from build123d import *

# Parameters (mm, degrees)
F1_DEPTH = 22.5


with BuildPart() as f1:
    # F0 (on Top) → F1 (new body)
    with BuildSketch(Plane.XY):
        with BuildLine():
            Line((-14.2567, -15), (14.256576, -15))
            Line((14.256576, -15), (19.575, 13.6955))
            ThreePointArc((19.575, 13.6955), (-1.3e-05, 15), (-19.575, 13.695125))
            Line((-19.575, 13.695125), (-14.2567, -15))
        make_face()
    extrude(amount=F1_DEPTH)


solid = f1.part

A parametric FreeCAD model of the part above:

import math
import FreeCAD as App
import Part
import Sketcher

V = App.Vector

doc = App.newDocument("Part")
body = doc.addObject("PartDesign::Body", "Body")

sketch1 = body.newObject("Sketcher::SketchObject", "Sketch")
sketch1.AttachmentSupport = (doc.getObject("XY_Plane"), [""])
sketch1.MapMode = "FlatFace"
sketch1.addGeometry(Part.LineSegment(V(-14.2567, -15, 0), V(14.256576, -15, 0)), False)
sketch1.addGeometry(Part.LineSegment(V(14.256576, -15, 0), V(19.575, 13.6955, 0)), False)
sketch1.addGeometry(Part.ArcOfCircle(Part.Circle(V(0.0014, -132.500008, 0), V(0, 0, 1), 147.500008), math.radians(82.37422), math.radians(97.626877)), False)
sketch1.addGeometry(Part.LineSegment(V(-19.575, 13.695125, 0), V(-14.2567, -15, 0)), False)
sketch1.addConstraint(Sketcher.Constraint("Coincident", 0, 2, 1, 1))
sketch1.addConstraint(Sketcher.Constraint("Coincident", 1, 2, 2, 1))
sketch1.addConstraint(Sketcher.Constraint("Coincident", 2, 2, 3, 1))
sketch1.addConstraint(Sketcher.Constraint("Coincident", 3, 2, 0, 1))
sketch1.addConstraint(Sketcher.Constraint("Horizontal", 0))
sketch1.addConstraint(Sketcher.Constraint("DistanceY", 0, 2, -1, 1, 15.0))
sketch1.addConstraint(Sketcher.Constraint("Radius", 2, 147.500008))
sketch1.addConstraint(Sketcher.Constraint("DistanceX", 2, 2, 1, 2, 39.15))
sketch1.addConstraint(Sketcher.Constraint("DistanceX", -1, 1, 1, 2, 19.575))
sketch1.addConstraint(Sketcher.Constraint("DistanceX", -1, 1, 2, 3, 0.0014))
sketch1.addConstraint(Sketcher.Constraint("DistanceY", -1, 1, 1, 2, 13.6955))
sketch1.addConstraint(Sketcher.Constraint("DistanceX", 3, 2, -1, 1, 14.2567))
sketch1.addConstraint(Sketcher.Constraint("DistanceX", 0, 1, 0, 2, 28.513276))
pad1 = body.newObject("PartDesign::Pad", "Pad")
pad1.Profile = sketch1
pad1.Length = 22.5

doc.recompute()
